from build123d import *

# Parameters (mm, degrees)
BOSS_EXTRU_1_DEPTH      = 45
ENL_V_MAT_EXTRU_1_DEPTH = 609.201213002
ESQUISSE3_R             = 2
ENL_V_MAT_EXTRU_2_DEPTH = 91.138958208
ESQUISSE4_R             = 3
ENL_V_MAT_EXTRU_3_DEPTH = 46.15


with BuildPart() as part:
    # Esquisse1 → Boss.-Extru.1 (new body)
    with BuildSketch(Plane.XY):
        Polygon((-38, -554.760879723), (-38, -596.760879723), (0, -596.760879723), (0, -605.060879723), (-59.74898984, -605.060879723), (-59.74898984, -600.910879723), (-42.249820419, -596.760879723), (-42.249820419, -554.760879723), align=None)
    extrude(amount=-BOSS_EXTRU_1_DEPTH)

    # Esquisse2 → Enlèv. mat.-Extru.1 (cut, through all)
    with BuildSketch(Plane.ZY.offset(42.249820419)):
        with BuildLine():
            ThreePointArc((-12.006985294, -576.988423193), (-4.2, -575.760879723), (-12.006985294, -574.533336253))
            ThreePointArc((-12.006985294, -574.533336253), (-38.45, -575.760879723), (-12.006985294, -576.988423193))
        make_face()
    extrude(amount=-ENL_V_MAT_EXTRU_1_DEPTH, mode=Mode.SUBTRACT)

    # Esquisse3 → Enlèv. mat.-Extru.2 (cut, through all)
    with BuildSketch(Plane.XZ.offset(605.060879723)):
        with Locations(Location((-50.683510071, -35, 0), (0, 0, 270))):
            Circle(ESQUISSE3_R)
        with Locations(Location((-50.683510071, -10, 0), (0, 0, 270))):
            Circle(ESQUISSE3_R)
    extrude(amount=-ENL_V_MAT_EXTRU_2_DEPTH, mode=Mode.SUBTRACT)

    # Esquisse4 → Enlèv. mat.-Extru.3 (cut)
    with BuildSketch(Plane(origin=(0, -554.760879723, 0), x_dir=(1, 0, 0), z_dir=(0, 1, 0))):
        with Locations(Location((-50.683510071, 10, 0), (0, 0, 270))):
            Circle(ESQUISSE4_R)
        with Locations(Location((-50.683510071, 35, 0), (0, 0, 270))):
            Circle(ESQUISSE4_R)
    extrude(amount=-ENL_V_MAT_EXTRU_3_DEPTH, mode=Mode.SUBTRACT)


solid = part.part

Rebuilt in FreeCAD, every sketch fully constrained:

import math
import FreeCAD as App
import Part
import Sketcher

V = App.Vector


def add_polygon(sketch, points):
    """Adds a closed chain of lines whose ends are joined by coincident constraints."""
    first, n = sketch.GeometryCount, len(points)
    for a, b in zip(points, points[1:] + points[:1]):
        sketch.addGeometry(Part.LineSegment(App.Vector(*a, 0), App.Vector(*b, 0)), False)
    for i in range(n):
        sketch.addConstraint(Sketcher.Constraint("Coincident", first + i, 2, first + (i + 1) % n, 1))

doc = App.newDocument("Part")
body = doc.addObject("PartDesign::Body", "Body")

# Sketch on XY plane
sketch1 = body.newObject("Sketcher::SketchObject", "Sketch")
sketch1.AttachmentSupport = (doc.getObject("XY_Plane"), [""])
sketch1.MapMode = "FlatFace"
add_polygon(sketch1, [(-38, -596.76088), (-38, -554.76088), (-42.24982, -554.76088), (-42.24982, -596.76088), (-59.74899, -600.91088), (-59.74899, -605.06088), (0, -605.06088), (0, -596.76088)])  # lines 0-7
sketch1.addConstraint(Sketcher.Constraint("Vertical", 0))
sketch1.addConstraint(Sketcher.Constraint("Horizontal", 1))
sketch1.addConstraint(Sketcher.Constraint("Vertical", 2))
sketch1.addConstraint(Sketcher.Constraint("Vertical", 4))
sketch1.addConstraint(Sketcher.Constraint("Horizontal", 5))
sketch1.addConstraint(Sketcher.Constraint("Vertical", 6))
sketch1.addConstraint(Sketcher.Constraint("Horizontal", 7))
sketch1.addConstraint(Sketcher.Constraint("PointOnObject", 5, 2, -2))
sketch1.addConstraint(Sketcher.Constraint("Horizontal", 2, 2, 6, 2))
sketch1.addConstraint(Sketcher.Constraint("DistanceX", 7, 2, 7, 1, 38.0))
sketch1.addConstraint(Sketcher.Constraint("DistanceY", 0, 1, 0, 2, 42.0))
sketch1.addConstraint(Sketcher.Constraint("DistanceY", 6, 1, 6, 2, 8.3))
sketch1.addConstraint(Sketcher.Constraint("DistanceY", 4, 2, 4, 1, 4.15))
sketch1.addConstraint(Sketcher.Constraint("DistanceX", 1, 2, 1, 1, 4.24982))
sketch1.addConstraint(Sketcher.Constraint("DistanceX", 5, 1, 5, 2, 59.74899))
sketch1.addConstraint(Sketcher.Constraint("DistanceY", 0, 2, -1, 1, 554.76088))
pad1 = body.newObject("PartDesign::Pad", "Pad")
pad1.Profile = sketch1
pad1.Length = 45
pad1.Reversed = True

# Sketch on YZ plane
sketch2 = body.newObject("Sketcher::SketchObject", "Sketch001")
sketch2.AttachmentSupport = (doc.getObject("YZ_Plane"), [""])
sketch2.MapMode = "FlatFace"
sketch2.AttachmentOffset = App.Placement(V(0, 0, -42.24982), App.Rotation())
sketch2.addGeometry(Part.ArcOfCircle(Part.Circle(V(-575.76088, -8.2, 0), V(0, 0, 1), 4), math.radians(-72.128342), math.radians(252.128342)), False)
sketch2.addGeometry(Part.ArcOfCircle(Part.Circle(V(-575.76088, -25.2, 0), V(0, 0, 1), 13.25), math.radians(95.315778), math.radians(444.684222)), False)
sketch2.addConstraint(Sketcher.Constraint("Coincident", 0, 1, 1, 2))
sketch2.addConstraint(Sketcher.Constraint("Coincident", 1, 1, 0, 2))
sketch2.addConstraint(Sketcher.Constraint("Horizontal", 0, 1, 1, 1))
sketch2.addConstraint(Sketcher.Constraint("Radius", 0, 4.0))
sketch2.addConstraint(Sketcher.Constraint("Radius", 1, 13.25))
sketch2.addConstraint(Sketcher.Constraint("DistanceY", 1, 3, 0, 3, 17.0))
sketch2.addConstraint(Sketcher.Constraint("DistanceY", 0, 3, -1, 1, 8.2))
sketch2.addConstraint(Sketcher.Constraint("DistanceX", 0, 3, -1, 1, 575.76088))
pocket1 = body.newObject("PartDesign::Pocket", "Pocket")
pocket1.Profile = sketch2
pocket1.Type = "ThroughAll"
pocket1.Reversed = True

# Sketch on XZ plane
sketch3 = body.newObject("Sketcher::SketchObject", "Sketch002")
sketch3.AttachmentSupport = (doc.getObject("XZ_Plane"), [""])
sketch3.MapMode = "FlatFace"
sketch3.AttachmentOffset = App.Placement(V(0, 0, 605.06088), App.Rotation())
sketch3.addGeometry(Part.Circle(V(-50.68351, -35, 0), V(0, 0, 1), 2), False)
sketch3.addGeometry(Part.Circle(V(-50.68351, -10, 0), V(0, 0, 1), 2), False)
sketch3.addConstraint(Sketcher.Constraint("Equal", 0, 1))
sketch3.addConstraint(Sketcher.Constraint("Vertical", 0, 3, 1, 3))
sketch3.addConstraint(Sketcher.Constraint("Diameter", 0, 4.0))
sketch3.addConstraint(Sketcher.Constraint("DistanceY", 0, 3, -1, 1, 35.0))
sketch3.addConstraint(Sketcher.Constraint("DistanceY", 1, 3, -1, 1, 10.0))
sketch3.addConstraint(Sketcher.Constraint("DistanceX", 0, 3, -1, 1, 50.68351))
pocket2 = body.newObject("PartDesign::Pocket", "Pocket001")
pocket2.Profile = sketch3
pocket2.Type = "ThroughAll"

# Sketch on XZ plane
sketch4 = body.newObject("Sketcher::SketchObject", "Sketch003")
sketch4.AttachmentSupport = (doc.getObject("XZ_Plane"), [""])
sketch4.MapMode = "FlatFace"
sketch4.AttachmentOffset = App.Placement(V(0, 0, 554.76088), App.Rotation())
sketch4.addGeometry(Part.Circle(V(-50.68351, -10, 0), V(0, 0, 1), 3), False)
sketch4.addGeometry(Part.Circle(V(-50.68351, -35, 0), V(0, 0, 1), 3), False)
sketch4.addConstraint(Sketcher.Constraint("Equal", 0, 1))
sketch4.addConstraint(Sketcher.Constraint("Vertical", 0, 3, 1, 3))
sketch4.addConstraint(Sketcher.Constraint("Diameter", 0, 6.0))
sketch4.addConstraint(Sketcher.Constraint("DistanceY", 0, 3, -1, 1, 10.0))
sketch4.addConstraint(Sketcher.Constraint("DistanceY", 1, 3, -1, 1, 35.0))
sketch4.addConstraint(Sketcher.Constraint("DistanceX", 0, 3, -1, 1, 50.68351))
pocket3 = body.newObject("PartDesign::Pocket", "Pocket002")
pocket3.Profile = sketch4
pocket3.Length = 46.15
pocket3.Reversed = True

doc.recompute()
